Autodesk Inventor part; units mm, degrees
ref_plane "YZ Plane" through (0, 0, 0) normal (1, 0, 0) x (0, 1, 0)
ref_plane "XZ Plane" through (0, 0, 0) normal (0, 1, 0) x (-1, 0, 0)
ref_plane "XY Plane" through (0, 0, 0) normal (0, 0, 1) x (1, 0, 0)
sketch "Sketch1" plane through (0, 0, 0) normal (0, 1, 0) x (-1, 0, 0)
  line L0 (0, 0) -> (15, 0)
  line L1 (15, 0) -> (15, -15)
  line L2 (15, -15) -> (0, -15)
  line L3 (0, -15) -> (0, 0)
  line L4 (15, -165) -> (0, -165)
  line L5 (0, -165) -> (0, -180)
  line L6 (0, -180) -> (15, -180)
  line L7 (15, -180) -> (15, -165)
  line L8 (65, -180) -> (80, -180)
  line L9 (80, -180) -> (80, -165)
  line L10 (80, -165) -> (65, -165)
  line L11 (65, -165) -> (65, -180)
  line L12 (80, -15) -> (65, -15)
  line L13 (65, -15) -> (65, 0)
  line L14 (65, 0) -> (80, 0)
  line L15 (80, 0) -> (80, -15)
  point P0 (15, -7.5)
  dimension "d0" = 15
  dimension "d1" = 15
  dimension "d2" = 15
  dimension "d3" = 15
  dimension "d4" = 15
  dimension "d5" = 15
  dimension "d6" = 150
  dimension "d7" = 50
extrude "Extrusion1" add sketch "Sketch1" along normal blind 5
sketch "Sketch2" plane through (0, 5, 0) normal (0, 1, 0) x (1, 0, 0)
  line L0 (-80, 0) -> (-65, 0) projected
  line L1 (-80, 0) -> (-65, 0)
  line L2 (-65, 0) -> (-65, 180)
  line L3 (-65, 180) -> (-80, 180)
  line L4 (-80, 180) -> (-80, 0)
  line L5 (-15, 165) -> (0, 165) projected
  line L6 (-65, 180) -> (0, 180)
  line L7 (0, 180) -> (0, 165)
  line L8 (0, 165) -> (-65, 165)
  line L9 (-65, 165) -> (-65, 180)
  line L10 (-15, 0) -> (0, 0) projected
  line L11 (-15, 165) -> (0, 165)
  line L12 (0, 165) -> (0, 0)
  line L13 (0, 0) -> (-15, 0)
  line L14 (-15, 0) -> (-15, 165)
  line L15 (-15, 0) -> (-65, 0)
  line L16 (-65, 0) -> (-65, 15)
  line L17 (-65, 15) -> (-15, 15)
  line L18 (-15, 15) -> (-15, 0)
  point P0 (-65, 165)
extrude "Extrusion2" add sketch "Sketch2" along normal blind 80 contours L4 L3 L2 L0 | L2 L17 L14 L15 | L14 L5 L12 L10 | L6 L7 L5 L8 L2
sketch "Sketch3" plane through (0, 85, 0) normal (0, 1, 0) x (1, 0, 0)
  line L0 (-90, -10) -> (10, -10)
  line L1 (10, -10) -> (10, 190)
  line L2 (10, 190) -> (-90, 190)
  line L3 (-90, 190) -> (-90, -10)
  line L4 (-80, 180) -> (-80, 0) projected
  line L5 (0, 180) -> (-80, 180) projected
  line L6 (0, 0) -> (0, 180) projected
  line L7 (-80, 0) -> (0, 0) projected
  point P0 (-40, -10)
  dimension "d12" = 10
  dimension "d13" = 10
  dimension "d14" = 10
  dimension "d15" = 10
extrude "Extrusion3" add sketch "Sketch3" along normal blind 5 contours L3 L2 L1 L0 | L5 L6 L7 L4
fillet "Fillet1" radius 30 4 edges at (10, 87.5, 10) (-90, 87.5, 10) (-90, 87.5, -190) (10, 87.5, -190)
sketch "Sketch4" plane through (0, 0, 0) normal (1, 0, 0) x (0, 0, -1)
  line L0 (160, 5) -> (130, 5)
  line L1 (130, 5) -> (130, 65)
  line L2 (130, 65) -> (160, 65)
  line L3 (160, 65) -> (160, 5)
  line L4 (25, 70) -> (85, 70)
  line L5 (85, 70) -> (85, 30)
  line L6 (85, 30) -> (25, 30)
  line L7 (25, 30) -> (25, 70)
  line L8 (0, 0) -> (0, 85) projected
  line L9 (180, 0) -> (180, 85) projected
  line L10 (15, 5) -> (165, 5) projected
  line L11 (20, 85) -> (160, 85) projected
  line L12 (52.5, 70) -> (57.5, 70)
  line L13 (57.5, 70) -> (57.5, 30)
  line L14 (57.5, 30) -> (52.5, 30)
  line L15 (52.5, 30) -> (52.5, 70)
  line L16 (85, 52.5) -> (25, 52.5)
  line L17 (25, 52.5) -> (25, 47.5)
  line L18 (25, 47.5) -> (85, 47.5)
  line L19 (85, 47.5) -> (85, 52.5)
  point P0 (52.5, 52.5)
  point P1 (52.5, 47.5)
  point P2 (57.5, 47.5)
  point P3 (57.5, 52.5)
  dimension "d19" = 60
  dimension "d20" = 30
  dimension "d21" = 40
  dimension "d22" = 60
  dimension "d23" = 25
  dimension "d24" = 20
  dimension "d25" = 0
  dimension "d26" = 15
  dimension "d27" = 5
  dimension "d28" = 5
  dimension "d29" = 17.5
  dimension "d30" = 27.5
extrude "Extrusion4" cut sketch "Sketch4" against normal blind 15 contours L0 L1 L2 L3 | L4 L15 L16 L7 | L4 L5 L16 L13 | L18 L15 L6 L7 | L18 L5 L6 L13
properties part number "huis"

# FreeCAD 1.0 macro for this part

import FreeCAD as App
import Part
import Sketcher

V = App.Vector
Q = App.Units.Quantity


def edges_at(feature, points):
    """Names of the edges that pass closest to the given points."""
    edges = feature.Shape.Edges
    near = lambda p: min(range(len(edges)), key=lambda i: edges[i].distToShape(Part.Vertex(*p))[0])
    return sorted({f"Edge{near(p) + 1}" for p in points})


def add_polygon(sketch, points):
    """Adds a closed chain of lines whose ends are joined by coincident constraints."""
    first, n = sketch.GeometryCount, len(points)
    for a, b in zip(points, points[1:] + points[:1]):
        sketch.addGeometry(Part.LineSegment(App.Vector(*a, 0), App.Vector(*b, 0)), False)
    for i in range(n):
        sketch.addConstraint(Sketcher.Constraint("Coincident", first + i, 2, first + (i + 1) % n, 1))

doc = App.newDocument("Part")
body = doc.addObject("PartDesign::Body", "Body")
body.AllowCompound = True

# Sketch on XZ plane
sketch1 = body.newObject("Sketcher::SketchObject", "Sketch")
sketch1.AttachmentSupport = (doc.getObject("XZ_Plane"), [""])
sketch1.MapMode = "FlatFace"
add_polygon(sketch1, [(-15, 0), (0, 0), (0, -15), (-15, -15)])  # lines 0-3
add_polygon(sketch1, [(-15, -180), (-15, -165), (0, -165), (0, -180)])  # lines 4-7
add_polygon(sketch1, [(-65, -165), (-65, -180), (-80, -180), (-80, -165)])  # lines 8-11
add_polygon(sketch1, [(-65, -15), (-80, -15), (-80, 0), (-65, 0)])  # lines 12-15
sketch1.addConstraint(Sketcher.Constraint("Horizontal", 0))
sketch1.addConstraint(Sketcher.Constraint("Vertical", 1))
sketch1.addConstraint(Sketcher.Constraint("Horizontal", 2))
sketch1.addConstraint(Sketcher.Constraint("Vertical", 3))
sketch1.addConstraint(Sketcher.Constraint("Vertical", 4))
sketch1.addConstraint(Sketcher.Constraint("Horizontal", 5))
sketch1.addConstraint(Sketcher.Constraint("Vertical", 6))
sketch1.addConstraint(Sketcher.Constraint("Horizontal", 7))
sketch1.addConstraint(Sketcher.Constraint("Vertical", 8))
sketch1.addConstraint(Sketcher.Constraint("Horizontal", 9))
sketch1.addConstraint(Sketcher.Constraint("Vertical", 10))
sketch1.addConstraint(Sketcher.Constraint("Horizontal", 11))
sketch1.addConstraint(Sketcher.Constraint("Horizontal", 12))
sketch1.addConstraint(Sketcher.Constraint("Vertical", 13))
sketch1.addConstraint(Sketcher.Constraint("Horizontal", 14))
sketch1.addConstraint(Sketcher.Constraint("Vertical", 15))
sketch1.addConstraint(Sketcher.Constraint("Coincident", 0, 2, -1, 1))
sketch1.addConstraint(Sketcher.Constraint("PointOnObject", 5, 2, -2))
sketch1.addConstraint(Sketcher.Constraint("PointOnObject", 13, 2, -1))
sketch1.addConstraint(Sketcher.Constraint("Horizontal", 7, 2, 8, 2))
sketch1.addConstraint(Sketcher.Constraint("Horizontal", 5, 2, 10, 2))
sketch1.addConstraint(Sketcher.Constraint("Horizontal", 2, 2, 12, 2))
sketch1.addConstraint(Sketcher.Constraint("Vertical", 3, 2, 4, 2))
sketch1.addConstraint(Sketcher.Constraint("Vertical", 10, 2, 12, 2))
sketch1.addConstraint(Sketcher.Constraint("Vertical", 11, 2, 14, 2))
sketch1.addConstraint(Sketcher.Constraint("Equal", 7, 9))
sketch1.addConstraint(Sketcher.Constraint("Equal", 14, 1))
sketch1.addConstraint(Sketcher.Constraint("Equal", 3, 4))
sketch1.addConstraint(Sketcher.Constraint("DistanceX", 0, 1, 0, 2, Q("15 mm")))
sketch1.addConstraint(Sketcher.Constraint("DistanceY", 4, 2, 2, 2, Q("150 mm")))
sketch1.addConstraint(Sketcher.Constraint("DistanceX", 8, 2, 7, 2, Q("50 mm")))
pad1 = body.newObject("PartDesign::Pad", "Pad")
pad1.Profile = sketch1
pad1.Length = 5
pad1.Reversed = True

# Sketch on XZ plane
sketch2 = body.newObject("Sketcher::SketchObject", "Sketch001")
sketch2.AttachmentSupport = (doc.getObject("XZ_Plane"), [""])
sketch2.MapMode = "FlatFace"
sketch2.AttachmentOffset = App.Placement(V(0, 0, -5), App.Rotation())
add_polygon(sketch2, [(-80, -180), (-80, 0), (0, 0), (0, -180)])  # lines 0-3
add_polygon(sketch2, [(-65, -15), (-65, -165), (-15, -165), (-15, -15)])  # lines 4-7
sketch2.addConstraint(Sketcher.Constraint("Vertical", 0))
sketch2.addConstraint(Sketcher.Constraint("Horizontal", 1))
sketch2.addConstraint(Sketcher.Constraint("Vertical", 2))
sketch2.addConstraint(Sketcher.Constraint("Horizontal", 3))
sketch2.addConstraint(Sketcher.Constraint("Vertical", 4))
sketch2.addConstraint(Sketcher.Constraint("Horizontal", 5))
sketch2.addConstraint(Sketcher.Constraint("Vertical", 6))
sketch2.addConstraint(Sketcher.Constraint("Horizontal", 7))
sketch2.addConstraint(Sketcher.Constraint("Coincident", 1, 2, -1, 1))
sketch2.addConstraint(Sketcher.Constraint("DistanceX", 1, 1, 1, 2, Q("80 mm")))
sketch2.addConstraint(Sketcher.Constraint("DistanceX", 5, 1, 5, 2, Q("50 mm")))
sketch2.addConstraint(Sketcher.Constraint("DistanceY", 0, 1, 0, 2, Q("180 mm")))
sketch2.addConstraint(Sketcher.Constraint("DistanceY", 4, 2, 4, 1, Q("150 mm")))
sketch2.addConstraint(Sketcher.Constraint("DistanceX", 4, 2, -1, 1, Q("65 mm")))
sketch2.addConstraint(Sketcher.Constraint("DistanceY", 4, 2, -1, 1, Q("165 mm")))
pad2 = body.newObject("PartDesign::Pad", "Pad001")
pad2.Profile = sketch2
pad2.Length = 80
pad2.Reversed = True

# Sketch on XZ plane
sketch3 = body.newObject("Sketcher::SketchObject", "Sketch002")
sketch3.AttachmentSupport = (doc.getObject("XZ_Plane"), [""])
sketch3.MapMode = "FlatFace"
sketch3.AttachmentOffset = App.Placement(V(0, 0, -85), App.Rotation())
add_polygon(sketch3, [(-90, -190), (-90, 10), (10, 10), (10, -190)])  # lines 0-3
sketch3.addConstraint(Sketcher.Constraint("Vertical", 0))
sketch3.addConstraint(Sketcher.Constraint("Horizontal", 1))
sketch3.addConstraint(Sketcher.Constraint("Vertical", 2))
sketch3.addConstraint(Sketcher.Constraint("Horizontal", 3))
sketch3.addConstraint(Sketcher.Constraint("DistanceY", -1, 1, 0, 2, Q("10 mm")))
sketch3.addConstraint(Sketcher.Constraint("DistanceX", -1, 1, 1, 2, Q("10 mm")))
sketch3.addConstraint(Sketcher.Constraint("DistanceX", 1, 1, 1, 2, Q("100 mm")))
sketch3.addConstraint(Sketcher.Constraint("DistanceY", 0, 1, 0, 2, Q("200 mm")))
pad3 = body.newObject("PartDesign::Pad", "Pad002")
pad3.Profile = sketch3
pad3.Length = 5
pad3.Reversed = True
doc.recompute()

fillet = body.newObject("PartDesign::Fillet", "Fillet")
fillet.Base = (pad3, edges_at(pad3, [
    (10, 87.5, 10),
    (-90, 87.5, 10),
    (-90, 87.5, -190),
    (10, 87.5, -190),
]))
fillet.Radius = 30

# Sketch on YZ plane
sketch4 = body.newObject("Sketcher::SketchObject", "Sketch003")
sketch4.AttachmentSupport = (doc.getObject("YZ_Plane"), [""])
sketch4.MapMode = "FlatFace"
add_polygon(sketch4, [(5, -130), (5, -160), (65, -160), (65, -130)])  # lines 0-3
add_polygon(sketch4, [(70, -52.5), (70, -25), (52.5, -25), (52.5, -52.5)])  # lines 4-7
add_polygon(sketch4, [(70, -85), (70, -57.5), (52.5, -57.5), (52.5, -85)])  # lines 8-11
add_polygon(sketch4, [(47.5, -52.5), (47.5, -25), (30, -25), (30, -52.5)])  # lines 12-15
add_polygon(sketch4, [(47.5, -85), (47.5, -57.5), (30, -57.5), (30, -85)])  # lines 16-19
sketch4.addConstraint(Sketcher.Constraint("Vertical", 0))
sketch4.addConstraint(Sketcher.Constraint("Horizontal", 1))
sketch4.addConstraint(Sketcher.Constraint("Vertical", 2))
sketch4.addConstraint(Sketcher.Constraint("Horizontal", 3))
sketch4.addConstraint(Sketcher.Constraint("Vertical", 4))
sketch4.addConstraint(Sketcher.Constraint("Horizontal", 5))
sketch4.addConstraint(Sketcher.Constraint("Vertical", 6))
sketch4.addConstraint(Sketcher.Constraint("Horizontal", 7))
sketch4.addConstraint(Sketcher.Constraint("Vertical", 8))
sketch4.addConstraint(Sketcher.Constraint("Horizontal", 9))
sketch4.addConstraint(Sketcher.Constraint("Vertical", 10))
sketch4.addConstraint(Sketcher.Constraint("Horizontal", 11))
sketch4.addConstraint(Sketcher.Constraint("Vertical", 12))
sketch4.addConstraint(Sketcher.Constraint("Horizontal", 13))
sketch4.addConstraint(Sketcher.Constraint("Vertical", 14))
sketch4.addConstraint(Sketcher.Constraint("Horizontal", 15))
sketch4.addConstraint(Sketcher.Constraint("Vertical", 16))
sketch4.addConstraint(Sketcher.Constraint("Horizontal", 17))
sketch4.addConstraint(Sketcher.Constraint("Vertical", 18))
sketch4.addConstraint(Sketcher.Constraint("Horizontal", 19))
sketch4.addConstraint(Sketcher.Constraint("Horizontal", 5, 2, 12, 2))
sketch4.addConstraint(Sketcher.Constraint("Horizontal", 7, 2, 14, 2))
sketch4.addConstraint(Sketcher.Constraint("Horizontal", 9, 2, 16, 2))
sketch4.addConstraint(Sketcher.Constraint("Horizontal", 11, 2, 18, 2))
sketch4.addConstraint(Sketcher.Constraint("Vertical", 7, 2, 8, 2))
sketch4.addConstraint(Sketcher.Constraint("Vertical", 6, 2, 9, 2))
sketch4.addConstraint(Sketcher.Constraint("Vertical", 15, 2, 16, 2))
sketch4.addConstraint(Sketcher.Constraint("Vertical", 14, 2, 17, 2))
sketch4.addConstraint(Sketcher.Constraint("Equal", 11, 13))
sketch4.addConstraint(Sketcher.Constraint("Equal", 6, 8))
sketch4.addConstraint(Sketcher.Constraint("DistanceX", 1, 1, 1, 2, Q("60 mm")))
sketch4.addConstraint(Sketcher.Constraint("DistanceY", 0, 2, 0, 1, Q("30 mm")))
sketch4.addConstraint(Sketcher.Constraint("DistanceX", 5, 2, 5, 1, Q("17.5 mm")))
sketch4.addConstraint(Sketcher.Constraint("DistanceY", 4, 1, 4, 2, Q("27.5 mm")))
sketch4.addConstraint(Sketcher.Constraint("DistanceX", -1, 1, 0, 2, Q("5 mm")))
sketch4.addConstraint(Sketcher.Constraint("DistanceY", 4, 2, -1, 1, Q("25 mm")))
sketch4.addConstraint(Sketcher.Constraint("DistanceX", -1, 1, 13, 2, Q("30 mm")))
sketch4.addConstraint(Sketcher.Constraint("DistanceX", 2, 2, 4, 2, Q("5 mm")))
sketch4.addConstraint(Sketcher.Constraint("DistanceY", 8, 2, 7, 2, Q("5 mm")))
sketch4.addConstraint(Sketcher.Constraint("DistanceY", 0, 2, -1, 1, Q("160 mm")))
pocket1 = body.newObject("PartDesign::Pocket", "Pocket")
pocket1.Profile = sketch4
pocket1.Length = 15

doc.recompute()
